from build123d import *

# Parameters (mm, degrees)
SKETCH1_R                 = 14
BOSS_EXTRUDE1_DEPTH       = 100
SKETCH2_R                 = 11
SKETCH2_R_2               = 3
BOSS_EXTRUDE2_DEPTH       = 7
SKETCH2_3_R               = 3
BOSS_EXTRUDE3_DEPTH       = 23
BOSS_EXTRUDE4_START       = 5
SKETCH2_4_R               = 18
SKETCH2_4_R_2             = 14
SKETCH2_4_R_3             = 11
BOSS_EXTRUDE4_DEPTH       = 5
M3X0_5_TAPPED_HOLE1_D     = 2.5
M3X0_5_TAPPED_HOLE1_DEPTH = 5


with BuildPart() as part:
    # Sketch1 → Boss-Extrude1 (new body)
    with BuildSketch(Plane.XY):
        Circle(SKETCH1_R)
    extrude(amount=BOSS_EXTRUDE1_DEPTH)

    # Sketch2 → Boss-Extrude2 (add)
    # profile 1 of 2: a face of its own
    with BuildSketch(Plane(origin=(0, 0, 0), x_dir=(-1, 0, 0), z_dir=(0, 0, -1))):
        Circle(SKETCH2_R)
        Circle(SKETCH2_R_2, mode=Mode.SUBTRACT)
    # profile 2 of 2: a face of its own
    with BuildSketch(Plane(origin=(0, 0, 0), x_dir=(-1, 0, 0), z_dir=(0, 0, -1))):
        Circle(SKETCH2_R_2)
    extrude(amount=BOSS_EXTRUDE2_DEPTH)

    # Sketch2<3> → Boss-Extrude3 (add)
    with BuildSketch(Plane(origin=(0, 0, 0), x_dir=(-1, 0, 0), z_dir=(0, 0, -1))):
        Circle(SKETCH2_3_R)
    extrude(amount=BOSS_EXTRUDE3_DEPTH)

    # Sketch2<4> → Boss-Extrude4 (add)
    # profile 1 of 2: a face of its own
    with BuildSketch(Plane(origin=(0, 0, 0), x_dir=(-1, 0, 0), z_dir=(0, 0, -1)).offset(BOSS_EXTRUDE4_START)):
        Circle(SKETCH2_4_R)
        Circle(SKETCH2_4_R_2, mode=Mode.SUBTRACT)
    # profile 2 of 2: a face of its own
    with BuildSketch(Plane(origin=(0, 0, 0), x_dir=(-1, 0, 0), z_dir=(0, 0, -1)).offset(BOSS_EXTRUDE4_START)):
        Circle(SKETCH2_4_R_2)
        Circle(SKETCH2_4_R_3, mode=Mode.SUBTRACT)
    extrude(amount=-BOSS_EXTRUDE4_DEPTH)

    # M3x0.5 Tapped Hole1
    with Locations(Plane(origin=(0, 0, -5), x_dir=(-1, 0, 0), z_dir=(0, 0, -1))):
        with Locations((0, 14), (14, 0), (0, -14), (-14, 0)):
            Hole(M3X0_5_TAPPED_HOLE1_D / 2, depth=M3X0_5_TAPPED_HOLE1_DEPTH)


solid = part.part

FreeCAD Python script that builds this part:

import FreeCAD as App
import Part
import Sketcher

V = App.Vector
Q = App.Units.Quantity

doc = App.newDocument("Part")
body = doc.addObject("PartDesign::Body", "Body")

# Sketch on XY plane
sketch1 = body.newObject("Sketcher::SketchObject", "Sketch")
sketch1.AttachmentSupport = (doc.getObject("XY_Plane"), [""])
sketch1.MapMode = "FlatFace"
sketch1.addGeometry(Part.Circle(V(0, 0, 0), V(0, 0, 1), 14), False)
sketch1.addConstraint([
    Sketcher.Constraint("Coincident", 0, 3, -1, 1),
    Sketcher.Constraint("Diameter", 0, Q("28 mm")),
])
pad1 = body.newObject("PartDesign::Pad", "Pad")
pad1.Profile = sketch1
pad1.Length = 100

# Sketch on XY plane
sketch2 = body.newObject("Sketcher::SketchObject", "Sketch001")
sketch2.AttachmentSupport = (doc.getObject("XY_Plane"), [""])
sketch2.MapMode = "FlatFace"
sketch2.addGeometry(Part.Circle(V(0, 0, 0), V(0, 0, 1), 11), False)
sketch2.addConstraint([
    Sketcher.Constraint("Coincident", 0, 3, -1, 1),
    Sketcher.Constraint("Diameter", 0, Q("22 mm")),
])
pad2 = body.newObject("PartDesign::Pad", "Pad001")
pad2.Profile = sketch2
pad2.Length = 7
pad2.Reversed = True

# Sketch on XY plane
sketch3 = body.newObject("Sketcher::SketchObject", "Sketch002")
sketch3.AttachmentSupport = (doc.getObject("XY_Plane"), [""])
sketch3.MapMode = "FlatFace"
sketch3.addGeometry(Part.Circle(V(0, 0, 0), V(0, 0, 1), 3), False)
sketch3.addConstraint([
    Sketcher.Constraint("Coincident", 0, 3, -1, 1),
    Sketcher.Constraint("Diameter", 0, Q("6 mm")),
])
pad3 = body.newObject("PartDesign::Pad", "Pad002")
pad3.Profile = sketch3
pad3.Length = 23
pad3.Reversed = True

# Sketch on XY plane
sketch4 = body.newObject("Sketcher::SketchObject", "Sketch003")
sketch4.AttachmentSupport = (doc.getObject("XY_Plane"), [""])
sketch4.MapMode = "FlatFace"
sketch4.AttachmentOffset = App.Placement(V(0, 0, -5), App.Rotation())
sketch4.addGeometry([
    Part.Circle(V(0, 0, 0), V(0, 0, 1), 18),
    Part.Circle(V(0, 0, 0), V(0, 0, 1), 11),
], False)
sketch4.addConstraint([
    Sketcher.Constraint("Coincident", 0, 3, -1, 1),
    Sketcher.Constraint("Coincident", 1, 3, -1, 1),
    Sketcher.Constraint("Diameter", 0, Q("36 mm")),
    Sketcher.Constraint("Diameter", 1, Q("22 mm")),
])
pad4 = body.newObject("PartDesign::Pad", "Pad003")
pad4.Profile = sketch4
pad4.Length = 5

# Sketch on XY plane
sketch5 = body.newObject("Sketcher::SketchObject", "Sketch004")
sketch5.AttachmentSupport = (doc.getObject("XY_Plane"), [""])
sketch5.MapMode = "FlatFace"
sketch5.AttachmentOffset = App.Placement(V(0, 0, -5), App.Rotation())
sketch5.addGeometry([
    Part.Circle(V(0, 14, 0), V(0, 0, 1), 1.25),
    Part.Circle(V(-14, 0, 0), V(0, 0, 1), 1.25),
    Part.Circle(V(0, -14, 0), V(0, 0, 1), 1.25),
    Part.Circle(V(14, 0, 0), V(0, 0, 1), 1.25),
], False)
sketch5.addConstraint([
    Sketcher.Constraint("Equal", 0, 1),
    Sketcher.Constraint("Equal", 1, 2),
    Sketcher.Constraint("Equal", 2, 3),
    Sketcher.Constraint("Symmetric", 0, 3, 2, 3, -1, 1),
    Sketcher.Constraint("Symmetric", 1, 3, 3, 3, -1, 1),
    Sketcher.Constraint("PointOnObject", 0, 3, -2),
    Sketcher.Constraint("PointOnObject", 1, 3, -1),
    Sketcher.Constraint("Diameter", 0, Q("2.5 mm")),
    Sketcher.Constraint("DistanceY", -1, 1, 0, 3, Q("14 mm")),
    Sketcher.Constraint("DistanceX", 1, 3, -1, 1, Q("14 mm")),
])
doc.recompute()
hole = body.newObject("PartDesign::Hole", "Hole")
hole.Profile = sketch5
hole.ThreadType = "None"
hole.Diameter = 2.5
hole.DepthType = "Dimension"
hole.Depth = 5
hole.DrillPoint = "Flat"
hole.Reversed = True

doc.recompute()
